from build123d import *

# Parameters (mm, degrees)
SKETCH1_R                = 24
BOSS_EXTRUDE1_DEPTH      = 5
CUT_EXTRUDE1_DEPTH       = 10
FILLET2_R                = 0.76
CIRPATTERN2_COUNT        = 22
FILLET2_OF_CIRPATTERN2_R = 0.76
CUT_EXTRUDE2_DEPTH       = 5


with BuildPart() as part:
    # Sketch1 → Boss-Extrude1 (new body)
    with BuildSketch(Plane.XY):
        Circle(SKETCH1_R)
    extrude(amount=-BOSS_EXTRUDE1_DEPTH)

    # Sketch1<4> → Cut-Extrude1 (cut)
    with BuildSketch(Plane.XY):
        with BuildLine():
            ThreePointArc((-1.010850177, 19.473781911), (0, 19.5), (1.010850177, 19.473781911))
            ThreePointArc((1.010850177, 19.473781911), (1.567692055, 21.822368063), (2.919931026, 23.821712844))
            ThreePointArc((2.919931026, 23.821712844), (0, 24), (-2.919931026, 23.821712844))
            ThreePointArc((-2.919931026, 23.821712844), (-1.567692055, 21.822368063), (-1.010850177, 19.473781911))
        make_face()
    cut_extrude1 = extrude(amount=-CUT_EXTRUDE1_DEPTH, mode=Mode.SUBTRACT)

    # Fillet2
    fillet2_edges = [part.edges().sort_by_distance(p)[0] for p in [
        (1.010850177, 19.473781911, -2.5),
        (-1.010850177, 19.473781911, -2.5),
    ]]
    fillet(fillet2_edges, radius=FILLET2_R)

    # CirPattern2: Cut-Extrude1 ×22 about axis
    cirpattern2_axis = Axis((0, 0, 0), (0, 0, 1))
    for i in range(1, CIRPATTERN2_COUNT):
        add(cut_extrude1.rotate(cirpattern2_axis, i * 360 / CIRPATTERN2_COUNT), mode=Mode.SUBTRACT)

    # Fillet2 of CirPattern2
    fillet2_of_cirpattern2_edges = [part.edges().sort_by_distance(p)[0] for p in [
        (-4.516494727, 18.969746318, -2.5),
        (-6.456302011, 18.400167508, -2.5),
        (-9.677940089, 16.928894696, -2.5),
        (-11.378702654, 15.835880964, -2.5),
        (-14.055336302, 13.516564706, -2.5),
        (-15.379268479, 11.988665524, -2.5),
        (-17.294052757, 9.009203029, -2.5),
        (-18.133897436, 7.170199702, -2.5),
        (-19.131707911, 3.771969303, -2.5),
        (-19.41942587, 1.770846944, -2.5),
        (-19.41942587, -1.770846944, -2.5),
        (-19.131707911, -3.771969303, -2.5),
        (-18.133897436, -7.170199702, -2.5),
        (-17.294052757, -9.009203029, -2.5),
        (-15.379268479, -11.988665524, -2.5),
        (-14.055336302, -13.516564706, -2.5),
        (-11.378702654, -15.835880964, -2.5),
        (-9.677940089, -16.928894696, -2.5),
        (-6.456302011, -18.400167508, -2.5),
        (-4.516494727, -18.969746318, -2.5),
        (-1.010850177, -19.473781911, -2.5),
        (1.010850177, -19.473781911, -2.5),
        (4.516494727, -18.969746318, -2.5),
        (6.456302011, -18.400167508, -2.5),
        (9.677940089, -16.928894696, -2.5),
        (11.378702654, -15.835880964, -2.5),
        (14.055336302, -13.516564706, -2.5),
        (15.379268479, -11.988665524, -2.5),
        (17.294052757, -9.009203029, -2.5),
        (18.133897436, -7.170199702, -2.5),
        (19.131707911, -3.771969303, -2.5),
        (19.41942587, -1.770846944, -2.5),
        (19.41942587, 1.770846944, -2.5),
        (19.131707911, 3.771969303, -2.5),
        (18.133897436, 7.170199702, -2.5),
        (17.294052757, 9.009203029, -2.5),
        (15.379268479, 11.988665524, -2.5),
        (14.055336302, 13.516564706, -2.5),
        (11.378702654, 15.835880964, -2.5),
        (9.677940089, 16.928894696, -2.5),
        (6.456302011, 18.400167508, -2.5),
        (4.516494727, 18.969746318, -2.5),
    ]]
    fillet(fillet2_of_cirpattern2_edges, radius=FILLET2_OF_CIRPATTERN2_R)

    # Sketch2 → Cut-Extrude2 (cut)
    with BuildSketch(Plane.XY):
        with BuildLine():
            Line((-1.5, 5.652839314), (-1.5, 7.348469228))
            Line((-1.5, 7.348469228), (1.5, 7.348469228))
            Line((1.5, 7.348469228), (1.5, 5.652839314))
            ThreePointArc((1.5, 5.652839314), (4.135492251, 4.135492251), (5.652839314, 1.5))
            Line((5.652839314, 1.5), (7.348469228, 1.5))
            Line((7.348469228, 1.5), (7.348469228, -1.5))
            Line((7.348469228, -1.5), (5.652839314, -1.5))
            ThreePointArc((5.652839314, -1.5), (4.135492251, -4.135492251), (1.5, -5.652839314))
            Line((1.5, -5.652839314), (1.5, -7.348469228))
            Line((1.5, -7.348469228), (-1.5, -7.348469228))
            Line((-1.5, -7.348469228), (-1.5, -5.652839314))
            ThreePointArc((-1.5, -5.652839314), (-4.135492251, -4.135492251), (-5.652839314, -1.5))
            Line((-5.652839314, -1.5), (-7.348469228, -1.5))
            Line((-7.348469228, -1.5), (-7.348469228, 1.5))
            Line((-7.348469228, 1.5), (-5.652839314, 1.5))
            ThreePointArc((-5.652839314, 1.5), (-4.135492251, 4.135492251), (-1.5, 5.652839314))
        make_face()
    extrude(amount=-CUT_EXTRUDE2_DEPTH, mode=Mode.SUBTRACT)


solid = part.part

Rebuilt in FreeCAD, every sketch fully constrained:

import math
import FreeCAD as App
import Part
import Sketcher


def edges_at(feature, points):
    """Names of the edges that pass closest to the given points."""
    edges = feature.Shape.Edges
    near = lambda p: min(range(len(edges)), key=lambda i: edges[i].distToShape(Part.Vertex(*p))[0])
    return sorted({f"Edge{near(p) + 1}" for p in points})

doc = App.newDocument("Part")
body = doc.addObject("PartDesign::Body", "Body")

# Sketch on XY plane
sketch1 = body.newObject("Sketcher::SketchObject", "Sketch")
sketch1.AttachmentSupport = (doc.getObject("XY_Plane"), [""])
sketch1.MapMode = "FlatFace"
sketch1.addGeometry(Part.Circle(App.Vector(0, 0, 0), App.Vector(0, 0, 1), 24), False)
sketch1.addConstraint(Sketcher.Constraint("Coincident", 0, 3, -1, 1))
sketch1.addConstraint(Sketcher.Constraint("Diameter", 0, 48.0))
pad1 = body.newObject("PartDesign::Pad", "Pad")
pad1.Profile = sketch1
pad1.Length = 5
pad1.Reversed = True

# Sketch on XY plane
sketch2 = body.newObject("Sketcher::SketchObject", "Sketch001")
sketch2.AttachmentSupport = (doc.getObject("XY_Plane"), [""])
sketch2.MapMode = "FlatFace"
sketch2.addGeometry(Part.ArcOfCircle(Part.Circle(App.Vector(0, 0, 0), App.Vector(0, 0, 1), 19.5), math.radians(87.03), math.radians(92.97)), False)
sketch2.addGeometry(Part.ArcOfCircle(Part.Circle(App.Vector(7.7, 19.1, 0), App.Vector(0, 0, 1), 6.7), math.radians(136), math.radians(177)), False)
sketch2.addGeometry(Part.ArcOfCircle(Part.Circle(App.Vector(0, 0, 0), App.Vector(0, 0, 1), 24), math.radians(83.01), math.radians(96.99)), False)
sketch2.addGeometry(Part.ArcOfCircle(Part.Circle(App.Vector(-7.7, 19.1, 0), App.Vector(0, 0, 1), 6.7), math.radians(3), math.radians(44)), False)
sketch2.addConstraint(Sketcher.Constraint("Coincident", 0, 1, 1, 2))
sketch2.addConstraint(Sketcher.Constraint("Coincident", 1, 1, 2, 1))
sketch2.addConstraint(Sketcher.Constraint("Coincident", 2, 2, 3, 2))
sketch2.addConstraint(Sketcher.Constraint("Coincident", 3, 1, 0, 2))
sketch2.addConstraint(Sketcher.Constraint("Coincident", 0, 3, -1, 1))
sketch2.addConstraint(Sketcher.Constraint("Coincident", 2, 3, -1, 1))
sketch2.addConstraint(Sketcher.Constraint("Equal", 1, 3))
sketch2.addConstraint(Sketcher.Constraint("Symmetric", 1, 3, 3, 3, -2))
sketch2.addConstraint(Sketcher.Constraint("Radius", 2, 24.0))
sketch2.addConstraint(Sketcher.Constraint("Radius", 0, 19.5))
sketch2.addConstraint(Sketcher.Constraint("Radius", 1, 6.706553))
sketch2.addConstraint(Sketcher.Constraint("DistanceX", 3, 1, 0, 1, 2.0217))
sketch2.addConstraint(Sketcher.Constraint("DistanceX", -1, 1, 1, 1, 2.919931))
pocket1 = body.newObject("PartDesign::Pocket", "Pocket")
pocket1.Profile = sketch2
pocket1.Length = 10
doc.recompute()

fillet = body.newObject("PartDesign::Fillet", "Fillet")
fillet.Base = (pocket1, edges_at(pocket1, [(1.011, 19.474, -2.5), (-1.011, 19.474, -2.5)]))
fillet.Radius = 0.76
doc.recompute()

polarpattern = body.newObject("PartDesign::PolarPattern", "PolarPattern")
polarpattern.Originals = [pocket1]
polarpattern.Axis = (doc.getObject("Z_Axis"), [""])
polarpattern.Angle = 360
polarpattern.Occurrences = 22
body.Tip = polarpattern
doc.recompute()

fillet2 = body.newObject("PartDesign::Fillet", "Fillet001")
fillet2.Base = (polarpattern, edges_at(polarpattern, [
    (-4.516, 18.97, -2.5),
    (-6.456, 18.4, -2.5),
    (-9.678, 16.929, -2.5),
    (-11.379, 15.836, -2.5),
    (-14.055, 13.517, -2.5),
    (-15.379, 11.989, -2.5),
    (-17.294, 9.009, -2.5),
    (-18.134, 7.17, -2.5),
    (-19.132, 3.772, -2.5),
    (-19.419, 1.771, -2.5),
    (-19.419, -1.771, -2.5),
    (-19.132, -3.772, -2.5),
    (-18.134, -7.17, -2.5),
    (-17.294, -9.009, -2.5),
    (-15.379, -11.989, -2.5),
    (-14.055, -13.517, -2.5),
    (-11.379, -15.836, -2.5),
    (-9.678, -16.929, -2.5),
    (-6.456, -18.4, -2.5),
    (-4.516, -18.97, -2.5),
    (-1.011, -19.474, -2.5),
    (1.011, -19.474, -2.5),
    (4.516, -18.97, -2.5),
    (6.456, -18.4, -2.5),
    (9.678, -16.929, -2.5),
    (11.379, -15.836, -2.5),
    (14.055, -13.517, -2.5),
    (15.379, -11.989, -2.5),
    (17.294, -9.009, -2.5),
    (18.134, -7.17, -2.5),
    (19.132, -3.772, -2.5),
    (19.419, -1.771, -2.5),
    (19.419, 1.771, -2.5),
    (19.132, 3.772, -2.5),
    (18.134, 7.17, -2.5),
    (17.294, 9.009, -2.5),
    (15.379, 11.989, -2.5),
    (14.055, 13.517, -2.5),
    (11.379, 15.836, -2.5),
    (9.678, 16.929, -2.5),
    (6.456, 18.4, -2.5),
    (4.516, 18.97, -2.5),
]))
fillet2.Radius = 0.76

# Sketch on XY plane
sketch3 = body.newObject("Sketcher::SketchObject", "Sketch002")
sketch3.AttachmentSupport = (doc.getObject("XY_Plane"), [""])
sketch3.MapMode = "FlatFace"
sketch3.addGeometry(Part.LineSegment(App.Vector(-1.5, 7.3, 0), App.Vector(-1.5, 5.7, 0)), False)
sketch3.addGeometry(Part.ArcOfCircle(Part.Circle(App.Vector(0, 0, 0), App.Vector(0, 0, 1), 5.8), math.radians(105), math.radians(165)), False)
sketch3.addGeometry(Part.LineSegment(App.Vector(-5.7, 1.5, 0), App.Vector(-7.3, 1.5, 0)), False)
sketch3.addGeometry(Part.LineSegment(App.Vector(-7.3, 1.5, 0), App.Vector(-7.3, -1.5, 0)), False)
sketch3.addGeometry(Part.LineSegment(App.Vector(-7.3, -1.5, 0), App.Vector(-5.7, -1.5, 0)), False)
sketch3.addGeometry(Part.ArcOfCircle(Part.Circle(App.Vector(0, 0, 0), App.Vector(0, 0, 1), 5.8), math.radians(-165), math.radians(-105)), False)
sketch3.addGeometry(Part.LineSegment(App.Vector(-1.5, -5.7, 0), App.Vector(-1.5, -7.3, 0)), False)
sketch3.addGeometry(Part.LineSegment(App.Vector(-1.5, -7.3, 0), App.Vector(1.5, -7.3, 0)), False)
sketch3.addGeometry(Part.LineSegment(App.Vector(1.5, -7.3, 0), App.Vector(1.5, -5.7, 0)), False)
sketch3.addGeometry(Part.ArcOfCircle(Part.Circle(App.Vector(0, 0, 0), App.Vector(0, 0, 1), 5.8), math.radians(-75), math.radians(-15)), False)
sketch3.addGeometry(Part.LineSegment(App.Vector(5.7, -1.5, 0), App.Vector(7.3, -1.5, 0)), False)
sketch3.addGeometry(Part.LineSegment(App.Vector(7.3, -1.5, 0), App.Vector(7.3, 1.5, 0)), False)
sketch3.addGeometry(Part.LineSegment(App.Vector(7.3, 1.5, 0), App.Vector(5.7, 1.5, 0)), False)
sketch3.addGeometry(Part.ArcOfCircle(Part.Circle(App.Vector(0, 0, 0), App.Vector(0, 0, 1), 5.8), math.radians(15), math.radians(75)), False)
sketch3.addGeometry(Part.LineSegment(App.Vector(1.5, 5.7, 0), App.Vector(1.5, 7.3, 0)), False)
sketch3.addGeometry(Part.LineSegment(App.Vector(1.5, 7.3, 0), App.Vector(-1.5, 7.3, 0)), False)
sketch3.addConstraint(Sketcher.Constraint("Coincident", 0, 2, 1, 1))
sketch3.addConstraint(Sketcher.Constraint("Coincident", 1, 2, 2, 1))
sketch3.addConstraint(Sketcher.Constraint("Coincident", 2, 2, 3, 1))
sketch3.addConstraint(Sketcher.Constraint("Coincident", 3, 2, 4, 1))
sketch3.addConstraint(Sketcher.Constraint("Coincident", 4, 2, 5, 1))
sketch3.addConstraint(Sketcher.Constraint("Coincident", 5, 2, 6, 1))
sketch3.addConstraint(Sketcher.Constraint("Coincident", 6, 2, 7, 1))
sketch3.addConstraint(Sketcher.Constraint("Coincident", 7, 2, 8, 1))
sketch3.addConstraint(Sketcher.Constraint("Coincident", 8, 2, 9, 1))
sketch3.addConstraint(Sketcher.Constraint("Coincident", 9, 2, 10, 1))
sketch3.addConstraint(Sketcher.Constraint("Coincident", 10, 2, 11, 1))
sketch3.addConstraint(Sketcher.Constraint("Coincident", 11, 2, 12, 1))
sketch3.addConstraint(Sketcher.Constraint("Coincident", 12, 2, 13, 1))
sketch3.addConstraint(Sketcher.Constraint("Coincident", 13, 2, 14, 1))
sketch3.addConstraint(Sketcher.Constraint("Coincident", 14, 2, 15, 1))
sketch3.addConstraint(Sketcher.Constraint("Coincident", 15, 2, 0, 1))
sketch3.addConstraint(Sketcher.Constraint("Vertical", 0))
sketch3.addConstraint(Sketcher.Constraint("Horizontal", 2))
sketch3.addConstraint(Sketcher.Constraint("Vertical", 3))
sketch3.addConstraint(Sketcher.Constraint("Horizontal", 4))
sketch3.addConstraint(Sketcher.Constraint("Vertical", 6))
sketch3.addConstraint(Sketcher.Constraint("Horizontal", 7))
sketch3.addConstraint(Sketcher.Constraint("Vertical", 8))
sketch3.addConstraint(Sketcher.Constraint("Horizontal", 10))
sketch3.addConstraint(Sketcher.Constraint("Vertical", 11))
sketch3.addConstraint(Sketcher.Constraint("Horizontal", 12))
sketch3.addConstraint(Sketcher.Constraint("Vertical", 14))
sketch3.addConstraint(Sketcher.Constraint("Horizontal", 15))
sketch3.addConstraint(Sketcher.Constraint("Coincident", 1, 3, -1, 1))
sketch3.addConstraint(Sketcher.Constraint("Coincident", 5, 3, -1, 1))
sketch3.addConstraint(Sketcher.Constraint("Coincident", 9, 3, -1, 1))
sketch3.addConstraint(Sketcher.Constraint("Coincident", 13, 3, -1, 1))
sketch3.addConstraint(Sketcher.Constraint("Equal", 1, 5))
sketch3.addConstraint(Sketcher.Constraint("Equal", 5, 9))
sketch3.addConstraint(Sketcher.Constraint("Equal", 9, 13))
sketch3.addConstraint(Sketcher.Constraint("Symmetric", 2, 2, 10, 2, -1, 1))
sketch3.addConstraint(Sketcher.Constraint("Symmetric", 6, 2, 14, 2, -1, 1))
sketch3.addConstraint(Sketcher.Constraint("Horizontal", 5, 2, 8, 2))
sketch3.addConstraint(Sketcher.Constraint("Horizontal", 4, 2, 9, 2))
sketch3.addConstraint(Sketcher.Constraint("Horizontal", 2, 2, 11, 2))
sketch3.addConstraint(Sketcher.Constraint("Horizontal", 0, 2, 13, 2))
sketch3.addConstraint(Sketcher.Constraint("Equal", 12, 0))
sketch3.addConstraint(Sketcher.Constraint("Equal", 15, 3))
sketch3.addConstraint(Sketcher.Constraint("DistanceX", 7, 1, 7, 2, 3.0))
sketch3.addConstraint(Sketcher.Constraint("Radius", 1, 5.848469))
sketch3.addConstraint(Sketcher.Constraint("DistanceX", 2, 2, 2, 1, 1.69563))
pocket2 = body.newObject("PartDesign::Pocket", "Pocket001")
pocket2.Profile = sketch3
pocket2.Length = 5

doc.recompute()
